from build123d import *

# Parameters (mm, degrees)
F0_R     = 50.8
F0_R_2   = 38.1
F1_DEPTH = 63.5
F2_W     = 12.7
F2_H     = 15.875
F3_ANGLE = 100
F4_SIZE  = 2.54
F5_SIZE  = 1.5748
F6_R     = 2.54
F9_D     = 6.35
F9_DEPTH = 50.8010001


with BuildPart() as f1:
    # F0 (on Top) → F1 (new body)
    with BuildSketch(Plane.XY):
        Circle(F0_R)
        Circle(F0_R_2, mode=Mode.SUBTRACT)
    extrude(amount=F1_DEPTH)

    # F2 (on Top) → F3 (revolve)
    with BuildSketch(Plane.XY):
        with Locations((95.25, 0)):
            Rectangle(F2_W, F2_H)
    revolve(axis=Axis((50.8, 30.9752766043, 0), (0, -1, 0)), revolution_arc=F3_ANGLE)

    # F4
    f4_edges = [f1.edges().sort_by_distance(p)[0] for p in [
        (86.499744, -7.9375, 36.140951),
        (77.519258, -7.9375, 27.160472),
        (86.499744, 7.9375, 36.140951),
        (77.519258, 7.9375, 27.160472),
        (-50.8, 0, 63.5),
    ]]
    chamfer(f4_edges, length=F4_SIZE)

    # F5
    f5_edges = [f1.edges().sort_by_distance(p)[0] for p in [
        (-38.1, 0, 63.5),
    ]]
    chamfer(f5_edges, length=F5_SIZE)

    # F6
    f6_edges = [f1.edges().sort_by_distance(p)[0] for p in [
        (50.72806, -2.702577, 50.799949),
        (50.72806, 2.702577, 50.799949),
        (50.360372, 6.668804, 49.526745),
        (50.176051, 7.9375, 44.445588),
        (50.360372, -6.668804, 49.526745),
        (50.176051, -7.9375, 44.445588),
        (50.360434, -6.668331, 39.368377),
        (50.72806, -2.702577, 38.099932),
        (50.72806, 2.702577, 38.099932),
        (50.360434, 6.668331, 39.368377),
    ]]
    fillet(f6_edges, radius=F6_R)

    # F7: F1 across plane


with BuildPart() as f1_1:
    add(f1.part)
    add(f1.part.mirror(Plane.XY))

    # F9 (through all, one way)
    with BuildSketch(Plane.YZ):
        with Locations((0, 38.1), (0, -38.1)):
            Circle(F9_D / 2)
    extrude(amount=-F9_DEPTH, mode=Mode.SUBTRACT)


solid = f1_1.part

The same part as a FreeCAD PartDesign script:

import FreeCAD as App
import Part
import Sketcher
from FreeCAD import Vector
Q = App.Units.Quantity


def edges_at(feature, points):
    """Names of the edges that pass closest to the given points."""
    edges = feature.Shape.Edges
    near = lambda p: min(range(len(edges)), key=lambda i: edges[i].distToShape(Part.Vertex(*p))[0])
    return sorted({f"Edge{near(p) + 1}" for p in points})

doc = App.newDocument("Part")
body = doc.addObject("PartDesign::Body", "Body")

# Sketch on XY plane
sketch1 = doc.addObject("Sketcher::SketchObject", "Sketch")
body.addObject(sketch1)
sketch1.AttachmentSupport = (doc.XY_Plane, [""])
sketch1.MapMode = "FlatFace"
sketch1.addGeometry([
    Part.Circle(Vector(0, 0, 0), Vector(0, 0, 1), 51),
    Part.Circle(Vector(0, 0, 0), Vector(0, 0, 1), 38),
], False)
sketch1.addConstraint([
    Sketcher.Constraint("Coincident", 0, 3, -1, 1),
    Sketcher.Constraint("Coincident", 1, 3, -1, 1),
    Sketcher.Constraint("Diameter", 0, Q("4 in")),
    Sketcher.Constraint("Diameter", 1, Q("3 in")),
])
pad1 = doc.addObject("PartDesign::Pad", "Pad")
body.addObject(pad1)
pad1.Profile = sketch1
pad1.Length = Q("2.5 in")

# Sketch on XY plane
sketch2 = doc.addObject("Sketcher::SketchObject", "Sketch001")
body.addObject(sketch2)
sketch2.AttachmentSupport = (doc.XY_Plane, [""])
sketch2.MapMode = "FlatFace"
sketch2.addGeometry([
    Part.LineSegment(Vector(89, 8, 0), Vector(89, -8, 0)),
    Part.LineSegment(Vector(89, -8, 0), Vector(102, -8, 0)),
    Part.LineSegment(Vector(102, -8, 0), Vector(102, 8, 0)),
    Part.LineSegment(Vector(102, 8, 0), Vector(89, 8, 0)),
], False)
sketch2.addGeometry(Part.LineSegment(Vector(51, 8, 0), Vector(51, -8, 0)), True)  # axis
sketch2.addConstraint([
    Sketcher.Constraint("Coincident", 0, 2, 1, 1),
    Sketcher.Constraint("Coincident", 1, 2, 2, 1),
    Sketcher.Constraint("Coincident", 2, 2, 3, 1),
    Sketcher.Constraint("Coincident", 3, 2, 0, 1),
    Sketcher.Constraint("Vertical", 0),
    Sketcher.Constraint("Horizontal", 1),
    Sketcher.Constraint("Vertical", 2),
    Sketcher.Constraint("Horizontal", 3),
    Sketcher.Constraint("Vertical", 4),
    Sketcher.Constraint("Horizontal", 3, 2, 4, 1),
    Sketcher.Constraint("Horizontal", 1, 2, 4, 2),
    Sketcher.Constraint("DistanceX", 1, 1, 1, 2, Q("0.5 in")),
    Sketcher.Constraint("DistanceX", -1, 1, 1, 2, Q("4 in")),
    Sketcher.Constraint("DistanceX", -1, 1, 4, 1, Q("2 in")),
    Sketcher.Constraint("DistanceY", 0, 2, 0, 1, Q("0.625 in")),
    Sketcher.Constraint("DistanceY", 0, 2, -1, 1, Q("0.3125 in")),
])
revolution = doc.addObject("PartDesign::Revolution", "Revolution")
body.addObject(revolution)
revolution.Profile = sketch2
revolution.ReferenceAxis = (sketch2, ["Axis0"])
revolution.Angle = 100
doc.recompute()

chamfer = doc.addObject("PartDesign::Chamfer", "Chamfer")
body.addObject(chamfer)
chamfer.Base = (revolution, edges_at(revolution, [
    (86.5, -7.938, 36.141),
    (77.519, -7.938, 27.16),
    (86.5, 7.938, 36.141),
    (77.519, 7.938, 27.16),
    (-50.8, 0, 63.5),
]))
chamfer.Size = Q("0.1 in")
doc.recompute()

chamfer2 = doc.addObject("PartDesign::Chamfer", "Chamfer001")
body.addObject(chamfer2)
chamfer2.Base = (chamfer, edges_at(chamfer, [(-38.1, 0, 63.5)]))
chamfer2.Size = Q("0.062 in")
doc.recompute()

fillet = doc.addObject("PartDesign::Fillet", "Fillet")
body.addObject(fillet)
fillet.Base = (chamfer2, edges_at(chamfer2, [
    (50.728, -2.703, 50.8),
    (50.728, 2.703, 50.8),
    (50.36, 6.669, 49.527),
    (50.176, 7.938, 44.446),
    (50.36, -6.669, 49.527),
    (50.176, -7.938, 44.446),
    (50.36, -6.668, 39.368),
    (50.728, -2.703, 38.1),
    (50.728, 2.703, 38.1),
    (50.36, 6.668, 39.368),
]))
fillet.Radius = Q("0.1 in")
body2 = doc.addObject("PartDesign::Body", "Body001")
doc.recompute()

body2.BaseFeature = body
doc.recompute()

mirroring = doc.addObject("Part::Mirroring", "Mirroring")
mirroring.Source = body
mirroring.Base = Vector(0, 0, 0)
mirroring.Normal = Vector(0, 0, 1)
body3 = doc.addObject("PartDesign::Body", "Body002")
body3.BaseFeature = mirroring
boolean = doc.addObject("PartDesign::Boolean", "Boolean")
body2.addObject(boolean)
boolean.Type = "Fuse"
boolean.addObjects([body3])
doc.recompute()

# Sketch on YZ plane
sketch3 = doc.addObject("Sketcher::SketchObject", "Sketch002")
body2.addObject(sketch3)
sketch3.AttachmentSupport = (doc.getObject("YZ_Plane001"), [""])
sketch3.MapMode = "FlatFace"
sketch3.addGeometry([
    Part.Circle(Vector(0, -38.1, 0), Vector(0, 0, 1), 3.2),
    Part.Circle(Vector(0, 38.1, 0), Vector(0, 0, 1), 3.2),
], False)
sketch3.addConstraint([
    Sketcher.Constraint("Equal", 0, 1),
    Sketcher.Constraint("Symmetric", 0, 3, 1, 3, -1, 1),
    Sketcher.Constraint("PointOnObject", 0, 3, -2),
    Sketcher.Constraint("Diameter", 0, Q("0.25 in")),
    Sketcher.Constraint("DistanceY", 0, 3, 1, 3, Q("3 in")),
])
pocket1 = doc.addObject("PartDesign::Pocket", "Pocket")
body2.addObject(pocket1)
pocket1.Profile = sketch3
pocket1.Type = "ThroughAll"
mirroring.Visibility = False

doc.recompute()
